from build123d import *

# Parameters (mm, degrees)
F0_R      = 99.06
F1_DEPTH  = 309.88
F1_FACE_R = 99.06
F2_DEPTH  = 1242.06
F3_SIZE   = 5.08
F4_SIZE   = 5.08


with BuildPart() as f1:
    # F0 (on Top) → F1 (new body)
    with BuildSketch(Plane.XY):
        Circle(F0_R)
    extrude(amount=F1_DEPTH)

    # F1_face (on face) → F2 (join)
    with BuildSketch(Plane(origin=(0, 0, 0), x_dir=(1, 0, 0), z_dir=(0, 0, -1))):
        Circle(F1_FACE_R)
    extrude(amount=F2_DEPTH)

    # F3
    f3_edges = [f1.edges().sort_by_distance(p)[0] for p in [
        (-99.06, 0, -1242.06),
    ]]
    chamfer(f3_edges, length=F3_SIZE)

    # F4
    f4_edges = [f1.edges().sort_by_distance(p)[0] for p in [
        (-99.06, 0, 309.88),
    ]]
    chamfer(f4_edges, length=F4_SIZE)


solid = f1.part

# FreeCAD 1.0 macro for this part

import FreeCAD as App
import Part
import Sketcher

V = App.Vector
Q = App.Units.Quantity


def edges_at(feature, points):
    """Names of the edges that pass closest to the given points."""
    edges = feature.Shape.Edges
    near = lambda p: min(range(len(edges)), key=lambda i: edges[i].distToShape(Part.Vertex(*p))[0])
    return sorted({f"Edge{near(p) + 1}" for p in points})

doc = App.newDocument("Part")
body = doc.addObject("PartDesign::Body", "Body")

# Sketch on XY plane
sketch1 = body.newObject("Sketcher::SketchObject", "Sketch")
sketch1.AttachmentSupport = (doc.getObject("XY_Plane"), [""])
sketch1.MapMode = "FlatFace"
sketch1.addGeometry(Part.Circle(V(0, 0, 0), V(0, 0, 1), 99), False)
sketch1.addConstraint([
    Sketcher.Constraint("Coincident", 0, 3, -1, 1),
    Sketcher.Constraint("Diameter", 0, Q("7.8 in")),
])
pad1 = body.newObject("PartDesign::Pad", "Pad")
pad1.Profile = sketch1
pad1.Length = Q("12.2 in")

# Sketch on XY plane
sketch2 = body.newObject("Sketcher::SketchObject", "Sketch001")
sketch2.AttachmentSupport = (doc.getObject("XY_Plane"), [""])
sketch2.MapMode = "FlatFace"
sketch2.addGeometry(Part.Circle(V(0, 0, 0), V(0, 0, 1), 99), False)
sketch2.addConstraint([
    Sketcher.Constraint("Coincident", 0, 3, -1, 1),
    Sketcher.Constraint("Diameter", 0, Q("7.8 in")),
])
pad2 = body.newObject("PartDesign::Pad", "Pad001")
pad2.Profile = sketch2
pad2.Length = Q("48.9 in")
pad2.Reversed = True
doc.recompute()

chamfer = body.newObject("PartDesign::Chamfer", "Chamfer")
chamfer.Base = (pad2, edges_at(pad2, [(-99.06, 0, -1242.06)]))
chamfer.Size = Q("0.2 in")
doc.recompute()

chamfer2 = body.newObject("PartDesign::Chamfer", "Chamfer001")
chamfer2.Base = (chamfer, edges_at(chamfer, [(-99.06, 0, 309.88)]))
chamfer2.Size = Q("0.2 in")

doc.recompute()
